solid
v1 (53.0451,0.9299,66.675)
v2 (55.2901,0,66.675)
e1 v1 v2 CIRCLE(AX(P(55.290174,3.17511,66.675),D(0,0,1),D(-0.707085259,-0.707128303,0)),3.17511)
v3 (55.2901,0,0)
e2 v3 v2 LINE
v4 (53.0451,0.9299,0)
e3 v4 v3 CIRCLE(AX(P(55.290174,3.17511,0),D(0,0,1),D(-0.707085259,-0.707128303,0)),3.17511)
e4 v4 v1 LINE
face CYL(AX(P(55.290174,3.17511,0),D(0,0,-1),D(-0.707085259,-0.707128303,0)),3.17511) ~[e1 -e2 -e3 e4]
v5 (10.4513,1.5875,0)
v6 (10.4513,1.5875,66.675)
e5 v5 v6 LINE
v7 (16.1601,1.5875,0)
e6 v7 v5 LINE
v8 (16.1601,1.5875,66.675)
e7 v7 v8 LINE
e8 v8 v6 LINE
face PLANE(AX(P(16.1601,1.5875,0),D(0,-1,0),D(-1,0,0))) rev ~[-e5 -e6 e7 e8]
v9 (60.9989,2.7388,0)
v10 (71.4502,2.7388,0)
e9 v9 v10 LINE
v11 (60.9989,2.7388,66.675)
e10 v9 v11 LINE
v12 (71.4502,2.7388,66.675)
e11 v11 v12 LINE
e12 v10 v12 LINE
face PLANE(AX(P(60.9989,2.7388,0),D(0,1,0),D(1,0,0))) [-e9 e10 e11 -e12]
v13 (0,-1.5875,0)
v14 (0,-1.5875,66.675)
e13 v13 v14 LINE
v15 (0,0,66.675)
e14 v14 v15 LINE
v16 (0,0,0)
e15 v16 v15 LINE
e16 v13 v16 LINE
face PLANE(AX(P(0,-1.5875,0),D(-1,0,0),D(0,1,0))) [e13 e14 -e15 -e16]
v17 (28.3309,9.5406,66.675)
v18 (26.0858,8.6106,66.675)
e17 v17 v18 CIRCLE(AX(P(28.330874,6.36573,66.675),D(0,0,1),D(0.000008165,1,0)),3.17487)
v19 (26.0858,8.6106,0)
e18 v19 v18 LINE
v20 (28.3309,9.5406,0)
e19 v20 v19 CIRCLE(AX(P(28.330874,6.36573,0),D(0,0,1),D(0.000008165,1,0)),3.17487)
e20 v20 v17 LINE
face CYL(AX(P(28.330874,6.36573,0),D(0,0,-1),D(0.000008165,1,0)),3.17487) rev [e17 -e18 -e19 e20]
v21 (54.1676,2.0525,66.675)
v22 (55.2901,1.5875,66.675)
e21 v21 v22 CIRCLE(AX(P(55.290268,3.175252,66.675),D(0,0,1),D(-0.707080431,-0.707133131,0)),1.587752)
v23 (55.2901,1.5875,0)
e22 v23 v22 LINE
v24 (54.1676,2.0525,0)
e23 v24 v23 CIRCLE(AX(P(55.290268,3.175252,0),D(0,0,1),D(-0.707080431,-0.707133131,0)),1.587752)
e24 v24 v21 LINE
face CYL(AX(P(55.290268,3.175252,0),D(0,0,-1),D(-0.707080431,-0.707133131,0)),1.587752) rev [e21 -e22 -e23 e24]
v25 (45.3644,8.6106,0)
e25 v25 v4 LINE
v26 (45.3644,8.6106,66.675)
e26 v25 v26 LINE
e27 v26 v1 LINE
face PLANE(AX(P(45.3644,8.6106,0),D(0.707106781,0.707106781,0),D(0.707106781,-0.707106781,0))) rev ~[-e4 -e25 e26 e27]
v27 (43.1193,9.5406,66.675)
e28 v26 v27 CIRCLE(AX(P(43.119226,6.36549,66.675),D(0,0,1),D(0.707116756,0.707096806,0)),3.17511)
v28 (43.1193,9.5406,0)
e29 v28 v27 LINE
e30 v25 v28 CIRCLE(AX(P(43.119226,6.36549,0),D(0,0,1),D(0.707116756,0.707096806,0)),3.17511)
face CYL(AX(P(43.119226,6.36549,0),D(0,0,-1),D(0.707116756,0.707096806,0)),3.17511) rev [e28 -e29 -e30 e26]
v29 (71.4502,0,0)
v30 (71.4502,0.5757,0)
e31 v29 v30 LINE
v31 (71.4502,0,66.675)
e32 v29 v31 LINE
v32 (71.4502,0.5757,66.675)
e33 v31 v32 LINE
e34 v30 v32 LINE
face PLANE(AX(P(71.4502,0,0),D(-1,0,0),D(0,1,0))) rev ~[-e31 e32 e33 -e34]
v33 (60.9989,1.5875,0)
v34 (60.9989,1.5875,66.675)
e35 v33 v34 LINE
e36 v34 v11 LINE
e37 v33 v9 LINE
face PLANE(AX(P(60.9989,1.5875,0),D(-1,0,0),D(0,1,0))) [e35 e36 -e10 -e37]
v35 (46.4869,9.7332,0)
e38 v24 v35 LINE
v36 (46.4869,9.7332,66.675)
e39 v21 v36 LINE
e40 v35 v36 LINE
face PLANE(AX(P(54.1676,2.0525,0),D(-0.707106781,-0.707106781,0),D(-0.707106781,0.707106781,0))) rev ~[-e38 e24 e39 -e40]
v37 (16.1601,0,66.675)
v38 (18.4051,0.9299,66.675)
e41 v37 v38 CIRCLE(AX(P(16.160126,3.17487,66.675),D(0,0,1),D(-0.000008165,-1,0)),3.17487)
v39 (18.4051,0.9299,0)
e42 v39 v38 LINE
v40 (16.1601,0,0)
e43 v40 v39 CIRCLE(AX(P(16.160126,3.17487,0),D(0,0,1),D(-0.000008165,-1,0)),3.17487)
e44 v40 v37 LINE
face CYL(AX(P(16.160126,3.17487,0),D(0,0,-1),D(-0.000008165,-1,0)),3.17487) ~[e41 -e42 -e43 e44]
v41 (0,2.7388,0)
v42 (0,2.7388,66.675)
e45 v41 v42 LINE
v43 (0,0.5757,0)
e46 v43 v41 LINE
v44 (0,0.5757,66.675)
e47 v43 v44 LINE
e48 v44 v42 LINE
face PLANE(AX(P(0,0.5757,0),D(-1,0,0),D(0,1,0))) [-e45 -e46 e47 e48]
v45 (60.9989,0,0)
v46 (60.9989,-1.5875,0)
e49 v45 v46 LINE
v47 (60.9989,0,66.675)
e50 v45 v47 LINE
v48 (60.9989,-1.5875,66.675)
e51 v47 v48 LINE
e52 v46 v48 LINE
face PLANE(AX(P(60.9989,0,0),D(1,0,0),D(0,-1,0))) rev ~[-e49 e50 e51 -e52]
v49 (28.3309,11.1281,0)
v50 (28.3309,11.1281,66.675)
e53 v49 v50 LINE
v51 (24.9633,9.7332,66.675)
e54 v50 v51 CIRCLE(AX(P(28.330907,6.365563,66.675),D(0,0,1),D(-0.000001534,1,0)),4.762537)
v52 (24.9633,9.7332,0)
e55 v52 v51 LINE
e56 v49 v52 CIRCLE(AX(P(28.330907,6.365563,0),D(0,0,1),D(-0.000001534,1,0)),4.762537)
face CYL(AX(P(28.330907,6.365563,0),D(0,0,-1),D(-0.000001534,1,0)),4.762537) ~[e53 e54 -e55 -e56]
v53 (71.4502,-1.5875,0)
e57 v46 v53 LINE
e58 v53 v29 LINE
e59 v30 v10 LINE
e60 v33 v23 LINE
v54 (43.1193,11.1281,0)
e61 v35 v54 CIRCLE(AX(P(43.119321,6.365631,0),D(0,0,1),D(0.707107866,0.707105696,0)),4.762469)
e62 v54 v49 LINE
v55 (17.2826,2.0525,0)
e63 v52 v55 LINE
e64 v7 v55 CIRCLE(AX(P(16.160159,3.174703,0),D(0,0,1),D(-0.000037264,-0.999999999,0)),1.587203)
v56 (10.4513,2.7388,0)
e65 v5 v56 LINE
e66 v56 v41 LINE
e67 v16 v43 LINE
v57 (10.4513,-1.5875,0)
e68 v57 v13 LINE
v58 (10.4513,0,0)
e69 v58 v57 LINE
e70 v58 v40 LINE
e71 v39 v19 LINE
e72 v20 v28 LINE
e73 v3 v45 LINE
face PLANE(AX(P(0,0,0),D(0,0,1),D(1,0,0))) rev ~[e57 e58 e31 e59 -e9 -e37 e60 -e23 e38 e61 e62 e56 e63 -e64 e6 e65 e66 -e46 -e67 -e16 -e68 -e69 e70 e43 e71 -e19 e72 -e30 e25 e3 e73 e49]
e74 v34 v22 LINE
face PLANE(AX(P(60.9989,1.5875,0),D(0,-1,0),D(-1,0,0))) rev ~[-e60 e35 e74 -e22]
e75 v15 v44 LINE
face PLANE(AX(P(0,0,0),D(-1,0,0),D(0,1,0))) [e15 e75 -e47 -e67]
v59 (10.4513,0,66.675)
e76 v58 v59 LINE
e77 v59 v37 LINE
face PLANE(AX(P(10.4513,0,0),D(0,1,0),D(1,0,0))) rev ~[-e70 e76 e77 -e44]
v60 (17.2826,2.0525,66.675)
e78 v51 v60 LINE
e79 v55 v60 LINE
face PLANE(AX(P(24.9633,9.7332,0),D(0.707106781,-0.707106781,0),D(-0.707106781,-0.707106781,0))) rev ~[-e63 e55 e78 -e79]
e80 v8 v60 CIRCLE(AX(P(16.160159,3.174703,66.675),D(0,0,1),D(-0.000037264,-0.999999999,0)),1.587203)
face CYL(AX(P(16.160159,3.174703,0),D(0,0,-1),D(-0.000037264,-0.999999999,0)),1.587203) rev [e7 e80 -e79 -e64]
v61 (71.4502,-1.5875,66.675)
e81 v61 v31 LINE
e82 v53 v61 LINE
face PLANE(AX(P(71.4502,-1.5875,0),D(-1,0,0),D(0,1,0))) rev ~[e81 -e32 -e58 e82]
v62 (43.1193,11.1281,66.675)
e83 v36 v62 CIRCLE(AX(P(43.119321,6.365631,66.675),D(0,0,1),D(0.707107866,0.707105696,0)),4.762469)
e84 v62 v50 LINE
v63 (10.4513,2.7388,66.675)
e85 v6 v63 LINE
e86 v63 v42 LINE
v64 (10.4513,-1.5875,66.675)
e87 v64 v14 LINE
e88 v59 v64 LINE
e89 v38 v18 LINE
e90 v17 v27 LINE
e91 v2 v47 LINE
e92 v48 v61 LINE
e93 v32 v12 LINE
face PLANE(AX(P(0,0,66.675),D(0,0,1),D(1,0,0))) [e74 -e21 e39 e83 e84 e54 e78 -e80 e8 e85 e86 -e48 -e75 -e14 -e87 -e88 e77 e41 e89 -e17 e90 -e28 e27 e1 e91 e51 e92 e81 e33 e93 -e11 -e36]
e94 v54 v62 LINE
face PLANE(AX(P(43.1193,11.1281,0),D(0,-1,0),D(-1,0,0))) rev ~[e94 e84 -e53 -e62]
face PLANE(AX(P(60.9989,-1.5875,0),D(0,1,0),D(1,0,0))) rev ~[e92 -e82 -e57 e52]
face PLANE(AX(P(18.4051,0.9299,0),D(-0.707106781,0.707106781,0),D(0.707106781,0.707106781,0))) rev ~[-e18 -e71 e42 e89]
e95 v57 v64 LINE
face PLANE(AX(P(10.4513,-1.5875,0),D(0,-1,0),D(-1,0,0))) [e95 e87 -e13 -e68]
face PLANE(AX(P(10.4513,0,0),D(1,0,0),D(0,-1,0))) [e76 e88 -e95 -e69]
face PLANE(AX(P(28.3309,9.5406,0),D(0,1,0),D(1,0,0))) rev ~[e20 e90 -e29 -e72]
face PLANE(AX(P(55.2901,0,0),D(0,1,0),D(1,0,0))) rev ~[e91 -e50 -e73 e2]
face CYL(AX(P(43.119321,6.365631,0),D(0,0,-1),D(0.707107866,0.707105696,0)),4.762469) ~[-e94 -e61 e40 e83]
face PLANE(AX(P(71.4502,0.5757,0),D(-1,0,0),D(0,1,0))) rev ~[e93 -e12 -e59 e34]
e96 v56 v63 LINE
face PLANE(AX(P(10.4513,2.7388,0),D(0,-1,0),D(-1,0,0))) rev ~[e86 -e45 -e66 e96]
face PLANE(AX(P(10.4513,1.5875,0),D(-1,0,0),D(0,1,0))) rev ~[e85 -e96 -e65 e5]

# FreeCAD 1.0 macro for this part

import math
import FreeCAD as App
import Part
import Sketcher
Q = App.Units.Quantity

doc = App.newDocument("Part")
body = doc.addObject("PartDesign::Body", "Body")

# Sketch on XY plane
sketch1 = body.newObject("Sketcher::SketchObject", "Sketch")
sketch1.AttachmentSupport = (doc.getObject("XY_Plane"), [""])
sketch1.MapMode = "FlatFace"
sketch1.addGeometry([
    Part.LineSegment(App.Vector(10.4513, -1.5875, 0), App.Vector(10.4513, 0, 0)),  # 0
    Part.LineSegment(App.Vector(10.4513, 0, 0), App.Vector(16.1601, 0, 0)),  # 1
    Part.ArcOfCircle(Part.Circle(App.Vector(16.1601, 3.175, 0), App.Vector(0, 0, 1), 3.175), math.radians(-90), math.radians(-45.001276)),  # 2
    Part.LineSegment(App.Vector(18.4051, 0.9299, 0), App.Vector(26.0858, 8.6106, 0)),  # 3
    Part.ArcOfCircle(Part.Circle(App.Vector(28.3309, 6.3656, 0), App.Vector(0, 0, 1), 3.175), math.radians(90), math.radians(135.001276)),  # 4
    Part.LineSegment(App.Vector(28.3309, 9.5406, 0), App.Vector(43.1193, 9.5406, 0)),  # 5
    Part.ArcOfCircle(Part.Circle(App.Vector(43.1193, 6.3656, 0), App.Vector(0, 0, 1), 3.17498), math.radians(44.998724), math.radians(90)),  # 6
    Part.LineSegment(App.Vector(45.3644, 8.6106, 0), App.Vector(53.0451, 0.9299, 0)),  # 7
    Part.ArcOfCircle(Part.Circle(App.Vector(55.2901, 3.175, 0), App.Vector(0, 0, 1), 3.17498), math.radians(-134.998724), math.radians(-90)),  # 8
    Part.LineSegment(App.Vector(55.2901, 0, 0), App.Vector(60.9989, 0, 0)),  # 9
    Part.LineSegment(App.Vector(60.9989, 0, 0), App.Vector(60.9989, -1.5875, 0)),  # 10
    Part.LineSegment(App.Vector(60.9989, -1.5875, 0), App.Vector(71.4502, -1.5875, 0)),  # 11
    Part.LineSegment(App.Vector(71.4502, -1.5875, 0), App.Vector(71.4502, 2.7388, 0)),  # 12
    Part.LineSegment(App.Vector(71.4502, 2.7388, 0), App.Vector(60.9989, 2.7388, 0)),  # 13
    Part.LineSegment(App.Vector(60.9989, 2.7388, 0), App.Vector(60.9989, 1.5875, 0)),  # 14
    Part.LineSegment(App.Vector(60.9989, 1.5875, 0), App.Vector(55.2901, 1.5875, 0)),  # 15
    Part.ArcOfCircle(Part.Circle(App.Vector(55.2901, 3.175, 0), App.Vector(0, 0, 1), 1.587455), math.radians(-135), math.radians(-90)),  # 16
    Part.LineSegment(App.Vector(54.1676, 2.0525, 0), App.Vector(46.4869, 9.7332, 0)),  # 17
    Part.ArcOfCircle(Part.Circle(App.Vector(43.1193, 6.3656, 0), App.Vector(0, 0, 1), 4.762506), math.radians(45), math.radians(90)),  # 18
    Part.LineSegment(App.Vector(43.1193, 11.1281, 0), App.Vector(28.3309, 11.1281, 0)),  # 19
    Part.ArcOfCircle(Part.Circle(App.Vector(28.3309, 6.3656, 0), App.Vector(0, 0, 1), 4.7625), math.radians(90), math.radians(135)),  # 20
    Part.LineSegment(App.Vector(24.9633, 9.7332, 0), App.Vector(17.2826, 2.0525, 0)),  # 21
    Part.ArcOfCircle(Part.Circle(App.Vector(16.1601, 3.175, 0), App.Vector(0, 0, 1), 1.5875), math.radians(-90), math.radians(-45)),  # 22
    Part.LineSegment(App.Vector(16.1601, 1.5875, 0), App.Vector(10.4513, 1.5875, 0)),  # 23
    Part.LineSegment(App.Vector(10.4513, 1.5875, 0), App.Vector(10.4513, 2.7388, 0)),  # 24
    Part.LineSegment(App.Vector(10.4513, 2.7388, 0), App.Vector(0, 2.7388, 0)),  # 25
    Part.LineSegment(App.Vector(0, 2.7388, 0), App.Vector(0, -1.5875, 0)),  # 26
    Part.LineSegment(App.Vector(0, -1.5875, 0), App.Vector(10.4513, -1.5875, 0)),  # 27
], False)
sketch1.addConstraint([
    Sketcher.Constraint("Coincident", 0, 2, 1, 1),
    Sketcher.Constraint("Tangent", 1, 2, 2, 1),
    Sketcher.Constraint("Tangent", 2, 2, 3, 1),
    Sketcher.Constraint("Tangent", 3, 2, 4, 2),
    Sketcher.Constraint("Tangent", 4, 1, 5, 1),
    Sketcher.Constraint("Tangent", 5, 2, 6, 2),
    Sketcher.Constraint("Tangent", 6, 1, 7, 1),
    Sketcher.Constraint("Tangent", 7, 2, 8, 1),
    Sketcher.Constraint("Tangent", 8, 2, 9, 1),
    Sketcher.Constraint("Coincident", 9, 2, 10, 1),
    Sketcher.Constraint("Coincident", 10, 2, 11, 1),
    Sketcher.Constraint("Coincident", 11, 2, 12, 1),
    Sketcher.Constraint("Coincident", 12, 2, 13, 1),
    Sketcher.Constraint("Coincident", 13, 2, 14, 1),
    Sketcher.Constraint("Coincident", 14, 2, 15, 1),
    Sketcher.Constraint("Tangent", 15, 2, 16, 2),
    Sketcher.Constraint("Tangent", 16, 1, 17, 1),
    Sketcher.Constraint("Tangent", 17, 2, 18, 1),
    Sketcher.Constraint("Tangent", 18, 2, 19, 1),
    Sketcher.Constraint("Tangent", 19, 2, 20, 1),
    Sketcher.Constraint("Tangent", 20, 2, 21, 1),
    Sketcher.Constraint("Tangent", 21, 2, 22, 2),
    Sketcher.Constraint("Tangent", 22, 1, 23, 1),
    Sketcher.Constraint("Coincident", 23, 2, 24, 1),
    Sketcher.Constraint("Coincident", 24, 2, 25, 1),
    Sketcher.Constraint("Coincident", 25, 2, 26, 1),
    Sketcher.Constraint("Coincident", 26, 2, 27, 1),
    Sketcher.Constraint("Coincident", 27, 2, 0, 1),
    Sketcher.Constraint("Vertical", 0),
    Sketcher.Constraint("Horizontal", 1),
    Sketcher.Constraint("Horizontal", 5),
    Sketcher.Constraint("Horizontal", 9),
    Sketcher.Constraint("Vertical", 10),
    Sketcher.Constraint("Horizontal", 11),
    Sketcher.Constraint("Vertical", 12),
    Sketcher.Constraint("Horizontal", 13),
    Sketcher.Constraint("Vertical", 14),
    Sketcher.Constraint("Horizontal", 15),
    Sketcher.Constraint("Horizontal", 19),
    Sketcher.Constraint("Horizontal", 23),
    Sketcher.Constraint("Vertical", 24),
    Sketcher.Constraint("Horizontal", 25),
    Sketcher.Constraint("Vertical", 26),
    Sketcher.Constraint("Horizontal", 27),
    Sketcher.Constraint("Coincident", 16, 3, 8, 3),
    Sketcher.Constraint("Coincident", 18, 3, 6, 3),
    Sketcher.Constraint("Coincident", 20, 3, 4, 3),
    Sketcher.Constraint("Coincident", 22, 3, 2, 3),
    Sketcher.Constraint("Equal", 2, 4),
    Sketcher.Constraint("Equal", 4, 6),
    Sketcher.Constraint("Equal", 6, 8),
    Sketcher.Constraint("Equal", 16, 22),
    Sketcher.Constraint("Symmetric", 10, 2, 14, 2, -1),
    Sketcher.Constraint("Symmetric", 23, 2, 27, 2, -1),
    Sketcher.Constraint("PointOnObject", 0, 2, -1),
    Sketcher.Constraint("PointOnObject", 8, 2, -1),
    Sketcher.Constraint("PointOnObject", 25, 2, -2),
    Sketcher.Constraint("Perpendicular", 3, 7),
    Sketcher.Constraint("Parallel", 7, 17),
    Sketcher.Constraint("Horizontal", 3, 2, 6, 1),
    Sketcher.Constraint("Horizontal", 13, 2, 24, 2),
    Sketcher.Constraint("Equal", 1, 9),
    Sketcher.Constraint("Equal", 13, 25),
    Sketcher.Constraint("Radius", 2, Q("0.125 in")),
    Sketcher.Constraint("Radius", 16, Q("0.0625 in")),
    Sketcher.Constraint("DistanceX", -1, 1, 3, 2, Q("1.027 in")),
    Sketcher.Constraint("DistanceY", -1, 1, 3, 2, Q("0.339 in")),
    Sketcher.Constraint("DistanceX", -1, 1, 6, 1, Q("1.786 in")),
    Sketcher.Constraint("DistanceX", 1, 1, 1, 2, Q("5.7088 mm")),
    Sketcher.Constraint("DistanceY", 12, 1, 12, 2, Q("4.3263 mm")),
])
pad1 = body.newObject("PartDesign::Pad", "Pad")
pad1.Profile = sketch1
pad1.Length = Q("2.625 in")

doc.recompute()
